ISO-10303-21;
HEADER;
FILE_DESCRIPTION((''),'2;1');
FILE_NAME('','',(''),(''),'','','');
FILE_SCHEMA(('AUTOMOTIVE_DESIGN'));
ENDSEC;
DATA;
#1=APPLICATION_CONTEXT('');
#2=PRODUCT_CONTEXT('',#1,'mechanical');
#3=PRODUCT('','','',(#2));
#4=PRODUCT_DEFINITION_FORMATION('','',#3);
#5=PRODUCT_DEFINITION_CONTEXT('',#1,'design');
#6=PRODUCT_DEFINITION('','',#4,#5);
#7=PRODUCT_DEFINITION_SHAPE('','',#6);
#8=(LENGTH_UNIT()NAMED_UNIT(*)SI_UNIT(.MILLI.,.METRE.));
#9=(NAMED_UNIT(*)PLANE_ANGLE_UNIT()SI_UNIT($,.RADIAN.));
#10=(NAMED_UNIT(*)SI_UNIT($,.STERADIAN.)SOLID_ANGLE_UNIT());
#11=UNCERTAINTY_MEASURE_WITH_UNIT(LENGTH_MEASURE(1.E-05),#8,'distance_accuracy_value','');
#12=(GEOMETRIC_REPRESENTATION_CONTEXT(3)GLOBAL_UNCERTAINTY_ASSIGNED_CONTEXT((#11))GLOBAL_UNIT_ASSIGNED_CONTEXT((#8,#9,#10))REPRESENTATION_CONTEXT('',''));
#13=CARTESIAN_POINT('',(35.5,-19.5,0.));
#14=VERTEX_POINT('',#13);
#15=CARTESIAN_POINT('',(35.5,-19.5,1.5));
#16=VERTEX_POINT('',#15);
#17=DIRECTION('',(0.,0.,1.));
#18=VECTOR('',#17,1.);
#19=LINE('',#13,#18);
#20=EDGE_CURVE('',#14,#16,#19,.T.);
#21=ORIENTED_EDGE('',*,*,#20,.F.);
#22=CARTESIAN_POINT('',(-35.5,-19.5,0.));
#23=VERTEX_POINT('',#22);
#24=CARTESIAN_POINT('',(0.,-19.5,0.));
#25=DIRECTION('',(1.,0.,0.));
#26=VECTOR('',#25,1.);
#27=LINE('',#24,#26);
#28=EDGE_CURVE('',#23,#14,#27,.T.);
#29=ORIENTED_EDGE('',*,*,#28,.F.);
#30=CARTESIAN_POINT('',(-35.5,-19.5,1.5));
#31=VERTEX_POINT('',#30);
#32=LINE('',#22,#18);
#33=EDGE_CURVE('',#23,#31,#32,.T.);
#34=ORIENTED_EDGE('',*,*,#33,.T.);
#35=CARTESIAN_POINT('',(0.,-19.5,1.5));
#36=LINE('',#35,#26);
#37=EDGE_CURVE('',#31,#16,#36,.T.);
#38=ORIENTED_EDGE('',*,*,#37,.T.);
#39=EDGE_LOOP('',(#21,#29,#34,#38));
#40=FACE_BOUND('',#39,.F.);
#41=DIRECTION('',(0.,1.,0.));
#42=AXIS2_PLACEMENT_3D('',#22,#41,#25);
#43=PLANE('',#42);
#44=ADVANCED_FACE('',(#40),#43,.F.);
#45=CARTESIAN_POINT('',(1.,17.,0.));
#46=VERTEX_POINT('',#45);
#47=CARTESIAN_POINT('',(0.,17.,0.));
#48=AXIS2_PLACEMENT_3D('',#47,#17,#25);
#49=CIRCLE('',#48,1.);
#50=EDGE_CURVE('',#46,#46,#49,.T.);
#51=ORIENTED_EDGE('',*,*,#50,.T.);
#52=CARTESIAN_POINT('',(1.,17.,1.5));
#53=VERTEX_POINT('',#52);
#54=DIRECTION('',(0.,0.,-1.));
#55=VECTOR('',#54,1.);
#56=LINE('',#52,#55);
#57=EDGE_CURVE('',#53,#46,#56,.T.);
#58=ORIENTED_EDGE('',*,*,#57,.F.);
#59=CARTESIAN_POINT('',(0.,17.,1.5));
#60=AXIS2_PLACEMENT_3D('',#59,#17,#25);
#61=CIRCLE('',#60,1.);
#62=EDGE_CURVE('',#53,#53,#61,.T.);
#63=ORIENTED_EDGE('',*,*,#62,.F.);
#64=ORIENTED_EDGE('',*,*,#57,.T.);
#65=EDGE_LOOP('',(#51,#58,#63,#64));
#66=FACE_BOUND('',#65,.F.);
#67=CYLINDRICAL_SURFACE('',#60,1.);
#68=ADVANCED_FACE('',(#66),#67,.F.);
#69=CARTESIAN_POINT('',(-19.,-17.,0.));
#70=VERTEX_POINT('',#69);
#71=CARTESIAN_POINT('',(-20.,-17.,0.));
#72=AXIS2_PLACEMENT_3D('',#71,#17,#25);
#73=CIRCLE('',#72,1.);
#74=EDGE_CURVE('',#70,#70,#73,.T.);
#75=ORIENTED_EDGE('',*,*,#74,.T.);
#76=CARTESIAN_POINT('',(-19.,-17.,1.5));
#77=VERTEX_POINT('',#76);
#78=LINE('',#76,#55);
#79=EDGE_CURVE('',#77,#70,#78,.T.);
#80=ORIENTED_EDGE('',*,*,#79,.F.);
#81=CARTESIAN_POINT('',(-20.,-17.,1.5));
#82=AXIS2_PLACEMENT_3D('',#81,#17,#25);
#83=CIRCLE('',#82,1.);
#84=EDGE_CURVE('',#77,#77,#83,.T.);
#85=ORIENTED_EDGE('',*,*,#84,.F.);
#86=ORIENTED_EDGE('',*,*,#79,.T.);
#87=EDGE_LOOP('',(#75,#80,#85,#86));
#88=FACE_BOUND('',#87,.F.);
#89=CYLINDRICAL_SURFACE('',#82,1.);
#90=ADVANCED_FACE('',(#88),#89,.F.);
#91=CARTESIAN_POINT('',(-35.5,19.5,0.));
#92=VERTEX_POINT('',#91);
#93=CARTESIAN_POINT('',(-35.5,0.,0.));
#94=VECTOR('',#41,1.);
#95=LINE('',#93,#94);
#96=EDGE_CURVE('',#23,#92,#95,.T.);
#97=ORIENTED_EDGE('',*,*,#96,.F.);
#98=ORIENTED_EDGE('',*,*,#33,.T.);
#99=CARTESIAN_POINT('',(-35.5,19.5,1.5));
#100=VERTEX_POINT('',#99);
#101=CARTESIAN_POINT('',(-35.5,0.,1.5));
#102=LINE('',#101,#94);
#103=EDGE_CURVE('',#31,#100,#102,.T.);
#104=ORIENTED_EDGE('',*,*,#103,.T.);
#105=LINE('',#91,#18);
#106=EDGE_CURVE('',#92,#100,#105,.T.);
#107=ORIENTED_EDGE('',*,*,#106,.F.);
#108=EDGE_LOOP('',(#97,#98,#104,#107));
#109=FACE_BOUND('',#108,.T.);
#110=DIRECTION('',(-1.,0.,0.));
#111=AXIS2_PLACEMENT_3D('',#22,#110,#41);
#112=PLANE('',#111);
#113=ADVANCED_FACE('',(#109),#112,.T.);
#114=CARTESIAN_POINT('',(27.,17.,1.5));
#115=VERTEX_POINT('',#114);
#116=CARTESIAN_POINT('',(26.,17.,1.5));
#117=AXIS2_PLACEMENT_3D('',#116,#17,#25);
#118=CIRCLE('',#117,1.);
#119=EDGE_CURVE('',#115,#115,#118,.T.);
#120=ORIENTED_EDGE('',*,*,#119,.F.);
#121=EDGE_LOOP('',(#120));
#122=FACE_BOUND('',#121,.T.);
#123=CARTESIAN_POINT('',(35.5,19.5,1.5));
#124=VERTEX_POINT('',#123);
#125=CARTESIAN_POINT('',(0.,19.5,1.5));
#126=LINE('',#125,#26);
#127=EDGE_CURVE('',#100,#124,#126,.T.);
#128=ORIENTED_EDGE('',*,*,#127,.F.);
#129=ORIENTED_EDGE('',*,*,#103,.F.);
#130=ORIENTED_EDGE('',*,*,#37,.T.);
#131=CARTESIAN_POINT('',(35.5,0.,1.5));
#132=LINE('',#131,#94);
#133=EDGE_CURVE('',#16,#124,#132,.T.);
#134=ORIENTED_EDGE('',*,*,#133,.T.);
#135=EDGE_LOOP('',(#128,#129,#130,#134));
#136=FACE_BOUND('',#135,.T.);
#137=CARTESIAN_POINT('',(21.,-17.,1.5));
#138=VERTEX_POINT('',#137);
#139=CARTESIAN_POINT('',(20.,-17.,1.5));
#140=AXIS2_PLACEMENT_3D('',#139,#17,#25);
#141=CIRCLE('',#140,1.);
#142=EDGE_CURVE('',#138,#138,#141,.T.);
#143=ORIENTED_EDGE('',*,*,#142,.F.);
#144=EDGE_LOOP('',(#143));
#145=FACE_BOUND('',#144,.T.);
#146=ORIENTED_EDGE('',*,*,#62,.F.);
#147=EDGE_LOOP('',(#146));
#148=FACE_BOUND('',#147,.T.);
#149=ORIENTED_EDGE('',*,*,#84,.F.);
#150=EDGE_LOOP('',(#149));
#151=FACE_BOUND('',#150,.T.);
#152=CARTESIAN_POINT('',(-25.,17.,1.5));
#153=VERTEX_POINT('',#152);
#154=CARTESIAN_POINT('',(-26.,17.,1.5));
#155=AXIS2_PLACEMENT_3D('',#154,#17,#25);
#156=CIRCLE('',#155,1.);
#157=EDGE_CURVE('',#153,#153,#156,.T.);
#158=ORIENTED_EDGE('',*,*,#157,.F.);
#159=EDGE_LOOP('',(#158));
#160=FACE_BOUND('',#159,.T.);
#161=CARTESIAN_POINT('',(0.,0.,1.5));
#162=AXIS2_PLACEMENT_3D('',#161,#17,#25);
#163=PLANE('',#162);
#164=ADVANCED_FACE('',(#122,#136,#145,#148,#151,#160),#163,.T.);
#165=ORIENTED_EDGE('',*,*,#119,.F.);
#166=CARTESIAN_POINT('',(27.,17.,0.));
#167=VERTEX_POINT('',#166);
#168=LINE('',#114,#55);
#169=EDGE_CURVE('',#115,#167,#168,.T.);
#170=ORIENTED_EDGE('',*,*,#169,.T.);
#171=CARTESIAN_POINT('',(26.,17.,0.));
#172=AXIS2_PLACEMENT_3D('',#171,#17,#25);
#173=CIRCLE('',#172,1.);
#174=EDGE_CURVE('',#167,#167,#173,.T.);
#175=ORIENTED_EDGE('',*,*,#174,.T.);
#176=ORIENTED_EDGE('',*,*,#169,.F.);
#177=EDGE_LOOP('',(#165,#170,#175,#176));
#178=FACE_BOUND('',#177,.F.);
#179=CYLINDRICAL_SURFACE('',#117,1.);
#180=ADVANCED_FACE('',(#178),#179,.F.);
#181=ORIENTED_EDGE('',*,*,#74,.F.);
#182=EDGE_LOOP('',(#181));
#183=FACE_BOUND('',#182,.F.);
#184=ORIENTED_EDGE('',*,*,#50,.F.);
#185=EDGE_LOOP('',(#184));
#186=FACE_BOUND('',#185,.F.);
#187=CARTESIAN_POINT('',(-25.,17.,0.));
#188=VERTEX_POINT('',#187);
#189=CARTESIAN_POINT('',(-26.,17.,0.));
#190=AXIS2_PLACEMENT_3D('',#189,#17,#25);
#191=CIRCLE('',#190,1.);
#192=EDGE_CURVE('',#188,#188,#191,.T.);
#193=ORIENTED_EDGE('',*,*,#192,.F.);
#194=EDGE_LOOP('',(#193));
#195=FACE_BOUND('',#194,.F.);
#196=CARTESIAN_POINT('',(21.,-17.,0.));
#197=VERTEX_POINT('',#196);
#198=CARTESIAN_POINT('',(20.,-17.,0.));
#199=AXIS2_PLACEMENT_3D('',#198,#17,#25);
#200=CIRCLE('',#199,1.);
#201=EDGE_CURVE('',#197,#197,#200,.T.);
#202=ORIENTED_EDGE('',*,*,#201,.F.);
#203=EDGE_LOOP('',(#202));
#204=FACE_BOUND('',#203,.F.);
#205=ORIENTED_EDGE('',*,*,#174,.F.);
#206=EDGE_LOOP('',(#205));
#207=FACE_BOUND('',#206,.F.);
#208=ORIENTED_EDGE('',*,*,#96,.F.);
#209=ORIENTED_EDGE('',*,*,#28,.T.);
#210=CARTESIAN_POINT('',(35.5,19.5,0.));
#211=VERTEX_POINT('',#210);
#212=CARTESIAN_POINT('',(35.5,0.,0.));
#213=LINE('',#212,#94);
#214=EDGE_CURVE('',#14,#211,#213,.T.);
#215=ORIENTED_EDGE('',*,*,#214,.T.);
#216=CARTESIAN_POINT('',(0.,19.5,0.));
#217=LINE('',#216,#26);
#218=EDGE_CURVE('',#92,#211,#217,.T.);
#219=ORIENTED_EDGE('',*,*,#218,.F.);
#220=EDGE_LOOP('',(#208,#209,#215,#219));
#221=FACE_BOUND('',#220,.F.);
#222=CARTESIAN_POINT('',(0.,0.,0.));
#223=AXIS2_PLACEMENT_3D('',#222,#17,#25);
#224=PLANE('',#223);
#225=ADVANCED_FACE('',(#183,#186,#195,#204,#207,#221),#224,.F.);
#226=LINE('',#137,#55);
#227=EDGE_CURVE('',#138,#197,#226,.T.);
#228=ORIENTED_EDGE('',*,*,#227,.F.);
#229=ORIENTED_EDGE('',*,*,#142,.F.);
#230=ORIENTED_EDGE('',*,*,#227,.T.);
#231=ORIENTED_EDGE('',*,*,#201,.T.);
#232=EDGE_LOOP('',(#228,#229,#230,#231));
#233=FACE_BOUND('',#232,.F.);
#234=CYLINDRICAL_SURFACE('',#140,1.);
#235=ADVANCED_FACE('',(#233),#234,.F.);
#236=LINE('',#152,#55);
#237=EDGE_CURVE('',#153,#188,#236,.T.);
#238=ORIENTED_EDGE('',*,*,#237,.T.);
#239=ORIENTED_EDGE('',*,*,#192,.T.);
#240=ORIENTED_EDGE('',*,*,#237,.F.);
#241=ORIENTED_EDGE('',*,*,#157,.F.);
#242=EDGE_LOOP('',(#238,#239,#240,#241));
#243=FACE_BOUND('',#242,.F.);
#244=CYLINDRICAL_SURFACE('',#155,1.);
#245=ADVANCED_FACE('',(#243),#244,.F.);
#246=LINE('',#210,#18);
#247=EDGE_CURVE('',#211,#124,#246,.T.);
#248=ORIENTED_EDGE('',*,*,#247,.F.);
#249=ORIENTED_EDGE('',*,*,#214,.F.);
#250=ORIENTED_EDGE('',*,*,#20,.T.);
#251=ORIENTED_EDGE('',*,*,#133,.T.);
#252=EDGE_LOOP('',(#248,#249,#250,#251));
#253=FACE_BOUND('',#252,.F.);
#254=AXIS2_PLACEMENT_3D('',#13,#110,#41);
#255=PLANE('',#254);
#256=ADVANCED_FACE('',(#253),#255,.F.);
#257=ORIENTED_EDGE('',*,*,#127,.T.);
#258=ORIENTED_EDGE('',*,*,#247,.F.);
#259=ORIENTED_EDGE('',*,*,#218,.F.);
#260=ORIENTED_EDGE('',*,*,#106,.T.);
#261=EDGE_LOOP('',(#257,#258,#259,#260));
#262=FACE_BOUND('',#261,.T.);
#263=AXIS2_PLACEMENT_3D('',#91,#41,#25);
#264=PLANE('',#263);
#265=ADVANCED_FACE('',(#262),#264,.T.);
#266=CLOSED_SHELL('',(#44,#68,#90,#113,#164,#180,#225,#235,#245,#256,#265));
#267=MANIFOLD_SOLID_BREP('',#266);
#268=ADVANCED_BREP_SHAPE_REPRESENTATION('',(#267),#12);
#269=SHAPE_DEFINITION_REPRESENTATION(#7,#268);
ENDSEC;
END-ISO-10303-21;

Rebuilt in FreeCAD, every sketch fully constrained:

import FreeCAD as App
import Part
import Sketcher

V = App.Vector
Q = App.Units.Quantity


def add_polygon(sketch, points):
    """Adds a closed chain of lines whose ends are joined by coincident constraints."""
    first, n = sketch.GeometryCount, len(points)
    for a, b in zip(points, points[1:] + points[:1]):
        sketch.addGeometry(Part.LineSegment(App.Vector(*a, 0), App.Vector(*b, 0)), False)
    for i in range(n):
        sketch.addConstraint(Sketcher.Constraint("Coincident", first + i, 2, first + (i + 1) % n, 1))

doc = App.newDocument("Part")
params = doc.addObject("Spreadsheet::Sheet", "Params")
for row, (alias, value) in enumerate([
    ("sketch1_width", "71 mm"),
    ("sketch1_height", "39 mm"),
    ("pad1_length", "1.5 mm"),
    ("sketch2_diameter", "2 mm"),
], start=1):
    params.set(f"A{row}", alias)
    params.set(f"B{row}", "=" + value)
    params.setAlias(f"B{row}", alias)

body = doc.addObject("PartDesign::Body", "Body")

sketch1 = body.newObject("Sketcher::SketchObject", "Sketch")
sketch1.AttachmentSupport = (doc.getObject("XY_Plane"), [""])
sketch1.MapMode = "FlatFace"
add_polygon(sketch1, [(-36, 20), (-36, -20), (36, -20), (36, 20)])
sketch1.addConstraint(Sketcher.Constraint("Vertical", 0))
sketch1.addConstraint(Sketcher.Constraint("Horizontal", 1))
sketch1.addConstraint(Sketcher.Constraint("Vertical", 2))
sketch1.addConstraint(Sketcher.Constraint("Horizontal", 3))
sketch1.addConstraint(Sketcher.Constraint("Symmetric", 0, 2, 2, 2, -1, 1))
sketch1.addConstraint(Sketcher.Constraint("DistanceX", 1, 1, 1, 2, Q("71 mm")))
sketch1.addConstraint(Sketcher.Constraint("DistanceY", 0, 2, 0, 1, Q("39 mm")))
sketch1.setExpression("Constraints[9]", "Params.sketch1_width")
sketch1.setExpression("Constraints[10]", "Params.sketch1_height")
pad1 = body.newObject("PartDesign::Pad", "Pad")
pad1.Profile = sketch1
pad1.setExpression("Length", "Params.pad1_length")

sketch2 = body.newObject("Sketcher::SketchObject", "Sketch001")
sketch2.AttachmentSupport = (doc.getObject("XY_Plane"), [""])
sketch2.MapMode = "FlatFace"
sketch2.AttachmentOffset = App.Placement(V(0, 0, 1.5), App.Rotation())
sketch2.addGeometry(Part.Circle(V(26, 17, 0), V(0, 0, 1), 1), False)
sketch2.addGeometry(Part.Circle(V(-26, 17, 0), V(0, 0, 1), 1), False)
sketch2.addGeometry(Part.Circle(V(0, 17, 0), V(0, 0, 1), 1), False)
sketch2.addGeometry(Part.Circle(V(20, -17, 0), V(0, 0, 1), 1), False)
sketch2.addGeometry(Part.Circle(V(-20, -17, 0), V(0, 0, 1), 1), False)
sketch2.addConstraint(Sketcher.Constraint("Equal", 0, 1))
sketch2.addConstraint(Sketcher.Constraint("Equal", 1, 2))
sketch2.addConstraint(Sketcher.Constraint("Equal", 2, 3))
sketch2.addConstraint(Sketcher.Constraint("Equal", 3, 4))
sketch2.addConstraint(Sketcher.Constraint("Symmetric", 0, 3, 1, 3, -2))
sketch2.addConstraint(Sketcher.Constraint("Symmetric", 3, 3, 4, 3, -2))
sketch2.addConstraint(Sketcher.Constraint("PointOnObject", 2, 3, -2))
sketch2.addConstraint(Sketcher.Constraint("Horizontal", 1, 3, 2, 3))
sketch2.addConstraint(Sketcher.Constraint("Diameter", 0, Q("2 mm")))
sketch2.addConstraint(Sketcher.Constraint("DistanceX", -1, 1, 0, 3, Q("26 mm")))
sketch2.addConstraint(Sketcher.Constraint("DistanceY", -1, 1, 0, 3, Q("17 mm")))
sketch2.addConstraint(Sketcher.Constraint("DistanceX", -1, 1, 3, 3, Q("20 mm")))
sketch2.addConstraint(Sketcher.Constraint("DistanceY", 3, 3, -1, 1, Q("17 mm")))
sketch2.setExpression("Constraints[8]", "Params.sketch2_diameter")
pocket1 = body.newObject("PartDesign::Pocket", "Pocket")
pocket1.Profile = sketch2
pocket1.Type = "ThroughAll"

doc.recompute()
